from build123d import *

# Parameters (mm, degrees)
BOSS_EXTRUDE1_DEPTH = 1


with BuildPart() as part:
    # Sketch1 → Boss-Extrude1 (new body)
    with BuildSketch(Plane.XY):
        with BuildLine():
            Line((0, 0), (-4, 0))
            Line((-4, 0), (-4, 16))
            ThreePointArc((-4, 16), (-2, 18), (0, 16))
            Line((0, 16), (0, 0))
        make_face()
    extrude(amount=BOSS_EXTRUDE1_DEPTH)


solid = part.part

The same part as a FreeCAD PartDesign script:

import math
import FreeCAD as App
import Part
import Sketcher

V = App.Vector
Q = App.Units.Quantity

doc = App.newDocument("Part")
body = doc.addObject("PartDesign::Body", "Body")

sketch1 = doc.addObject("Sketcher::SketchObject", "Sketch")
body.addObject(sketch1)
sketch1.AttachmentSupport = (doc.XY_Plane, [""])
sketch1.MapMode = "FlatFace"
sketch1.addGeometry(Part.LineSegment(V(-4, 0, 0), V(0, 0, 0)), False)
sketch1.addGeometry(Part.LineSegment(V(0, 0, 0), V(0, 16, 0)), False)
sketch1.addGeometry(Part.ArcOfCircle(Part.Circle(V(-2, 16, 0), V(0, 0, 1), 2), math.radians(0), math.radians(180)), False)
sketch1.addGeometry(Part.LineSegment(V(-4, 16, 0), V(-4, 0, 0)), False)
sketch1.addConstraint(Sketcher.Constraint("Coincident", 0, 2, 1, 1))
sketch1.addConstraint(Sketcher.Constraint("Tangent", 1, 2, 2, 1))
sketch1.addConstraint(Sketcher.Constraint("Tangent", 2, 2, 3, 1))
sketch1.addConstraint(Sketcher.Constraint("Coincident", 3, 2, 0, 1))
sketch1.addConstraint(Sketcher.Constraint("Horizontal", 0))
sketch1.addConstraint(Sketcher.Constraint("Vertical", 1))
sketch1.addConstraint(Sketcher.Constraint("Vertical", 3))
sketch1.addConstraint(Sketcher.Constraint("Coincident", 0, 2, -1, 1))
sketch1.addConstraint(Sketcher.Constraint("Radius", 2, Q("2 mm")))
sketch1.addConstraint(Sketcher.Constraint("DistanceY", 1, 1, 1, 2, Q("16 mm")))
pad1 = doc.addObject("PartDesign::Pad", "Pad")
body.addObject(pad1)
pad1.Profile = sketch1
pad1.Length = 1

doc.recompute()
